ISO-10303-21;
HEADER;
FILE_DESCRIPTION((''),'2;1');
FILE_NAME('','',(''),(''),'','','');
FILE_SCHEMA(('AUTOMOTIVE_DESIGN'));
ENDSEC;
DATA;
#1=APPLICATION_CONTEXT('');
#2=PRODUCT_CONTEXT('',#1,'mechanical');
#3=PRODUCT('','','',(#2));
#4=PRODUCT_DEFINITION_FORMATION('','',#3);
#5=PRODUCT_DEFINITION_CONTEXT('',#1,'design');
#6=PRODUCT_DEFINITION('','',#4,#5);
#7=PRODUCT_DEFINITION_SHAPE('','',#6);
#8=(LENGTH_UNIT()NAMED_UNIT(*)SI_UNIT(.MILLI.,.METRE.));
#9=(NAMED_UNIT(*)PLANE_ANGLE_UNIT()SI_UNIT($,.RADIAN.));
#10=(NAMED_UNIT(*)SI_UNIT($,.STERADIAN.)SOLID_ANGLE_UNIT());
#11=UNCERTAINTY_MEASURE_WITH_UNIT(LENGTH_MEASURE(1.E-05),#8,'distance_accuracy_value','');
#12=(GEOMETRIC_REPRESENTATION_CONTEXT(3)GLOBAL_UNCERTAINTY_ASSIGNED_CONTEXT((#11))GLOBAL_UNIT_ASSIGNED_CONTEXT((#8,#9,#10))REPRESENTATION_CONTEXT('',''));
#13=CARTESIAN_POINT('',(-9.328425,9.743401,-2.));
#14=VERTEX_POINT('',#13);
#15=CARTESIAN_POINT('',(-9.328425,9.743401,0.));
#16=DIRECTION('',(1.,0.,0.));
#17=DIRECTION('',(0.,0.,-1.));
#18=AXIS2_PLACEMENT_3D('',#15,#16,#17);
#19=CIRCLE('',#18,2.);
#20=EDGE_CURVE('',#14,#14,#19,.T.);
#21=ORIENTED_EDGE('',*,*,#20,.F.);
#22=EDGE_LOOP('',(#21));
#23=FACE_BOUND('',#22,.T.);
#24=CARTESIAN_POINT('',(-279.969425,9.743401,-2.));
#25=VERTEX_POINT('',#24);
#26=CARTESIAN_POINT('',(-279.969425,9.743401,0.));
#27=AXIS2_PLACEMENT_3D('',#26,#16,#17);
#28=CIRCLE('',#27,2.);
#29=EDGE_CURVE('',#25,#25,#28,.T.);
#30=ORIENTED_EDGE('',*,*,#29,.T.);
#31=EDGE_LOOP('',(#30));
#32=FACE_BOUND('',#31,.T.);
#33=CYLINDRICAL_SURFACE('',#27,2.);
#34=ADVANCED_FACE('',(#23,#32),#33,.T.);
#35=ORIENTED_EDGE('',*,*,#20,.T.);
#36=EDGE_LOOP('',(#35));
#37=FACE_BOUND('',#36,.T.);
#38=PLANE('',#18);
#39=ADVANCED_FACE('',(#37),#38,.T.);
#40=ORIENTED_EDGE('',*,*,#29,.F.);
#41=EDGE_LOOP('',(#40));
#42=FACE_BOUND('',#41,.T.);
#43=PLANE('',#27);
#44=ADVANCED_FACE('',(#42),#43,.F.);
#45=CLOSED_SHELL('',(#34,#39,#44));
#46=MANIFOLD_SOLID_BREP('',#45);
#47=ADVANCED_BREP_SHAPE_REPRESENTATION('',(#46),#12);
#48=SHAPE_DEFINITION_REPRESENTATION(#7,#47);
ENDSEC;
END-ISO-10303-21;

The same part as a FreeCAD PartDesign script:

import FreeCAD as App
import Part
import Sketcher

V = App.Vector

doc = App.newDocument("Part")
body = doc.addObject("PartDesign::Body", "Body")

sketch1 = doc.addObject("Sketcher::SketchObject", "Sketch")
body.addObject(sketch1)
sketch1.AttachmentSupport = (doc.YZ_Plane, [""])
sketch1.MapMode = "FlatFace"
sketch1.AttachmentOffset = App.Placement(V(0, 0, -9.328425), App.Rotation())
sketch1.addGeometry(Part.Circle(V(9.7, 0, 0), V(0, 0, 1), 2), False)
sketch1.addConstraint(Sketcher.Constraint("PointOnObject", 0, 3, -1))
sketch1.addConstraint(Sketcher.Constraint("Diameter", 0, 4.0))
sketch1.addConstraint(Sketcher.Constraint("DistanceX", -1, 1, 0, 3, 9.743401))
pad1 = doc.addObject("PartDesign::Pad", "Pad")
body.addObject(pad1)
pad1.Profile = sketch1
pad1.Length = 270.641
pad1.Reversed = True

doc.recompute()
